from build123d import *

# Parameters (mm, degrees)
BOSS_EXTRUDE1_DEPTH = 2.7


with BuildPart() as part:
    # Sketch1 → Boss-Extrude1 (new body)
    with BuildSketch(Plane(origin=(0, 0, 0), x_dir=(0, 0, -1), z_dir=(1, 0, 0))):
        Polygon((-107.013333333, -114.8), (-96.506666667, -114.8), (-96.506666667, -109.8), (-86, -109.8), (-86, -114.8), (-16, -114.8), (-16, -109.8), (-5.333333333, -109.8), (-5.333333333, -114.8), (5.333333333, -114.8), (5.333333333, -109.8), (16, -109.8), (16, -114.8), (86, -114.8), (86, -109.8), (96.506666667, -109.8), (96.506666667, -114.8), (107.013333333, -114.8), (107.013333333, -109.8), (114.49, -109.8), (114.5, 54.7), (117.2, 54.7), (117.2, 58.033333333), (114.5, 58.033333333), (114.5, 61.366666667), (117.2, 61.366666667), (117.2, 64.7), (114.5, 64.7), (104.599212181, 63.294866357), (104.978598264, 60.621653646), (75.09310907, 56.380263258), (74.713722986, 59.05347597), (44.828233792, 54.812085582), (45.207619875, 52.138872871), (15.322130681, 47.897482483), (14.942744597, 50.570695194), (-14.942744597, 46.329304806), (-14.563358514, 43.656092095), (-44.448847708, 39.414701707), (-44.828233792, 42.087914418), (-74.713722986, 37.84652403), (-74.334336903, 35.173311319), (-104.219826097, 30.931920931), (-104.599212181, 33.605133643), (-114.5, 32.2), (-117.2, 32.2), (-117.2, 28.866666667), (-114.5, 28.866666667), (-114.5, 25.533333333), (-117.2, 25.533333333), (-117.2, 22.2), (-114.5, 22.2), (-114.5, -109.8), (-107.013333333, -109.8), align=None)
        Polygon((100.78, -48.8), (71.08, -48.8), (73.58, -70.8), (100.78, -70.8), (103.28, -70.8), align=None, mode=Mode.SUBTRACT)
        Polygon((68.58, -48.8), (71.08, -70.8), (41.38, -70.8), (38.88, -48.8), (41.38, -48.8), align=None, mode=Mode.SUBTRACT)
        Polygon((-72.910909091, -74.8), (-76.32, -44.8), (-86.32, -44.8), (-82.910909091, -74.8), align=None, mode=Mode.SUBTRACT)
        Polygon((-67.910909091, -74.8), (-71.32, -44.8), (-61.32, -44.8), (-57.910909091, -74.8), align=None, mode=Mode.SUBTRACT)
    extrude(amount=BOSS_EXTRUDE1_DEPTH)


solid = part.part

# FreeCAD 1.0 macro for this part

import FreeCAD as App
import Part
import Sketcher
from FreeCAD import Vector


def add_polygon(sketch, points):
    """Adds a closed chain of lines whose ends are joined by coincident constraints."""
    first, n = sketch.GeometryCount, len(points)
    for a, b in zip(points, points[1:] + points[:1]):
        sketch.addGeometry(Part.LineSegment(App.Vector(*a, 0), App.Vector(*b, 0)), False)
    for i in range(n):
        sketch.addConstraint(Sketcher.Constraint("Coincident", first + i, 2, first + (i + 1) % n, 1))

doc = App.newDocument("Part")
body = doc.addObject("PartDesign::Body", "Body")

# Sketch on YZ plane
sketch1 = body.newObject("Sketcher::SketchObject", "Sketch")
sketch1.AttachmentSupport = (doc.getObject("YZ_Plane"), [""])
sketch1.MapMode = "FlatFace"
add_polygon(sketch1, [(-114.8, 107), (-114.8, 96.5), (-109.8, 96.5), (-109.8, 86), (-114.8, 86), (-114.8, 16), (-109.8, 16), (-109.8, 5.3), (-114.8, 5.3), (-114.8, -5.3), (-109.8, -5.3), (-109.8, -16), (-114.8, -16), (-114.8, -86), (-109.8, -86), (-109.8, -96.5), (-114.8, -96.5), (-114.8, -107), (-109.8, -107), (-109.8, -114.5), (54.7, -114.5), (54.7, -117.2), (58, -117.2), (58, -114.5), (61.4, -114.5), (61.4, -117.2), (64.7, -117.2), (64.7, -114.5), (63.3, -104.6), (60.6, -105), (56.4, -75.1), (59.1, -74.7), (54.8, -44.8), (52.1, -45.2), (47.9, -15.3), (50.6, -14.9), (46.3, 14.9), (43.7, 14.6), (39.4, 44.4), (42.1, 44.8), (37.8, 74.7), (35.2, 74.3), (30.9, 104.2), (33.6, 104.6), (32.2, 114.5), (32.2, 117.2), (28.9, 117.2), (28.9, 114.5), (25.5, 114.5), (25.5, 117.2), (22.2, 117.2), (22.2, 114.5), (-109.8, 114.5), (-109.8, 107)])  # lines 0-53
add_polygon(sketch1, [(-44.8, 76.3), (-74.8, 72.9), (-74.8, 82.9), (-44.8, 86.3)])  # lines 54-57
add_polygon(sketch1, [(-74.8, 57.9), (-74.8, 67.9), (-44.8, 71.3), (-44.8, 61.3)])  # lines 58-61
add_polygon(sketch1, [(-48.8, -38.9), (-48.8, -68.6), (-70.8, -71.1), (-70.8, -41.4)])  # lines 62-65
add_polygon(sketch1, [(-48.8, -71.1), (-48.8, -100.8), (-70.8, -103.3), (-70.8, -73.6)])  # lines 66-69
sketch1.addConstraint([
    Sketcher.Constraint("Vertical", 0),
    Sketcher.Constraint("Horizontal", 1),
    Sketcher.Constraint("Vertical", 2),
    Sketcher.Constraint("Horizontal", 3),
    Sketcher.Constraint("Vertical", 4),
    Sketcher.Constraint("Horizontal", 5),
    Sketcher.Constraint("Vertical", 6),
    Sketcher.Constraint("Horizontal", 7),
    Sketcher.Constraint("Vertical", 8),
    Sketcher.Constraint("Horizontal", 9),
    Sketcher.Constraint("Vertical", 10),
    Sketcher.Constraint("Horizontal", 11),
    Sketcher.Constraint("Vertical", 12),
    Sketcher.Constraint("Horizontal", 13),
    Sketcher.Constraint("Vertical", 14),
    Sketcher.Constraint("Horizontal", 15),
    Sketcher.Constraint("Vertical", 16),
    Sketcher.Constraint("Horizontal", 17),
    Sketcher.Constraint("Vertical", 18),
    Sketcher.Constraint("Vertical", 20),
    Sketcher.Constraint("Horizontal", 21),
    Sketcher.Constraint("Vertical", 22),
    Sketcher.Constraint("Horizontal", 23),
    Sketcher.Constraint("Vertical", 24),
    Sketcher.Constraint("Horizontal", 25),
    Sketcher.Constraint("Vertical", 26),
    Sketcher.Constraint("Vertical", 44),
    Sketcher.Constraint("Horizontal", 45),
    Sketcher.Constraint("Vertical", 46),
    Sketcher.Constraint("Horizontal", 47),
    Sketcher.Constraint("Vertical", 48),
    Sketcher.Constraint("Horizontal", 49),
    Sketcher.Constraint("Vertical", 50),
    Sketcher.Constraint("Horizontal", 51),
    Sketcher.Constraint("Vertical", 52),
    Sketcher.Constraint("Horizontal", 53),
    Sketcher.Constraint("Vertical", 55),
    Sketcher.Constraint("Vertical", 57),
    Sketcher.Constraint("Vertical", 58),
    Sketcher.Constraint("Vertical", 60),
    Sketcher.Constraint("Vertical", 62),
    Sketcher.Constraint("Vertical", 64),
    Sketcher.Constraint("Vertical", 66),
    Sketcher.Constraint("Vertical", 68),
    Sketcher.Constraint("Symmetric", 6, 2, 9, 2, -1),
    Sketcher.Constraint("Symmetric", 4, 2, 11, 2, -1),
    Sketcher.Constraint("Symmetric", 2, 2, 13, 2, -1),
    Sketcher.Constraint("Symmetric", 0, 2, 15, 2, -1),
    Sketcher.Constraint("Symmetric", 17, 2, 52, 2, -1),
    Sketcher.Constraint("Perpendicular", 27, 28),
    Sketcher.Constraint("Perpendicular", 28, 29),
    Sketcher.Constraint("Perpendicular", 29, 30),
    Sketcher.Constraint("Perpendicular", 30, 31),
    Sketcher.Constraint("Perpendicular", 31, 32),
    Sketcher.Constraint("Perpendicular", 32, 33),
    Sketcher.Constraint("Perpendicular", 33, 34),
    Sketcher.Constraint("Perpendicular", 34, 35),
    Sketcher.Constraint("Perpendicular", 35, 36),
    Sketcher.Constraint("Perpendicular", 36, 37),
    Sketcher.Constraint("Perpendicular", 37, 38),
    Sketcher.Constraint("Perpendicular", 38, 39),
    Sketcher.Constraint("Perpendicular", 39, 40),
    Sketcher.Constraint("Perpendicular", 40, 41),
    Sketcher.Constraint("Perpendicular", 41, 42),
    Sketcher.Constraint("Perpendicular", 42, 43),
    Sketcher.Constraint("Parallel", 54, 56),
    Sketcher.Constraint("Parallel", 56, 59),
    Sketcher.Constraint("Parallel", 59, 61),
    Sketcher.Constraint("Parallel", 61, 63),
    Sketcher.Constraint("Parallel", 63, 65),
    Sketcher.Constraint("Parallel", 65, 67),
    Sketcher.Constraint("Parallel", 67, 69),
    Sketcher.Constraint("Horizontal", 19, 2, 22, 2),
    Sketcher.Constraint("Horizontal", 21, 2, 24, 2),
    Sketcher.Constraint("Horizontal", 23, 2, 26, 2),
    Sketcher.Constraint("Horizontal", 43, 2, 46, 2),
    Sketcher.Constraint("Horizontal", 45, 2, 48, 2),
    Sketcher.Constraint("Horizontal", 47, 2, 50, 2),
    Sketcher.Constraint("Horizontal", 63, 2, 69, 2),
    Sketcher.Constraint("Vertical", 0, 2, 3, 2),
    Sketcher.Constraint("Vertical", 2, 2, 5, 2),
    Sketcher.Constraint("Vertical", 4, 2, 7, 2),
    Sketcher.Constraint("Vertical", 14, 2, 17, 2),
    Sketcher.Constraint("Vertical", 55, 2, 58, 2),
    Sketcher.Constraint("Vertical", 57, 2, 59, 2),
    Sketcher.Constraint("Vertical", 65, 2, 66, 2),
    Sketcher.Constraint("Vertical", 64, 2, 67, 2),
    Sketcher.Constraint("Equal", 21, 23),
    Sketcher.Constraint("Equal", 23, 25),
    Sketcher.Constraint("Equal", 25, 45),
    Sketcher.Constraint("Equal", 45, 47),
    Sketcher.Constraint("Equal", 47, 49),
    Sketcher.Constraint("Equal", 0, 2),
    Sketcher.Constraint("Equal", 6, 8),
    Sketcher.Constraint("Equal", 26, 44),
    Sketcher.Constraint("Equal", 57, 58),
    Sketcher.Constraint("Equal", 64, 66),
    Sketcher.Constraint("Equal", 28, 30),
    Sketcher.Constraint("Equal", 29, 31),
    Sketcher.Constraint("Equal", 30, 32),
    Sketcher.Constraint("Equal", 31, 33),
    Sketcher.Constraint("Equal", 32, 34),
    Sketcher.Constraint("Equal", 33, 35),
    Sketcher.Constraint("Equal", 34, 36),
    Sketcher.Constraint("Equal", 35, 37),
    Sketcher.Constraint("Equal", 36, 38),
    Sketcher.Constraint("Equal", 37, 39),
    Sketcher.Constraint("Equal", 38, 40),
    Sketcher.Constraint("Equal", 39, 41),
    Sketcher.Constraint("Equal", 40, 42),
    Sketcher.Constraint("Equal", 27, 43),
    Sketcher.Constraint("DistanceX", 1, 1, 1, 2, 5.0),
    Sketcher.Constraint("DistanceX", 51, 2, 51, 1, 132.0),
    Sketcher.Constraint("DistanceY", 4, 2, 4, 1, 70.0),
    Sketcher.Constraint("DistanceY", 55, 1, 55, 2, 10.0),
    Sketcher.Constraint("Distance", 27, 10.0),
    Sketcher.Constraint("DistanceY", 20, 2, 20, 1, 2.7),
    Sketcher.Constraint("DistanceY", 62, 2, 62, 1, 29.7),
    Sketcher.Constraint("DistanceY", -1, 1, 2, 2, 86.0),
    Sketcher.Constraint("Distance", 19, 164.5),
    Sketcher.Constraint("Distance", 28, 2.7),
    Sketcher.Constraint("DistanceX", 0, 2, -1, 1, 114.8),
    Sketcher.Constraint("DistanceY", 19, 2, -1, 1, 114.5),
    Sketcher.Constraint("DistanceX", -1, 1, 25, 2, 64.7),
    Sketcher.Constraint("DistanceY", -1, 1, 43, 2, 114.5),
    Sketcher.Constraint("DistanceX", 54, 2, -1, 1, 74.8),
    Sketcher.Constraint("DistanceX", 56, 2, -1, 1, 44.8),
    Sketcher.Constraint("DistanceX", 62, 2, -1, 1, 48.8),
    Sketcher.Constraint("DistanceX", 63, 2, -1, 1, 70.8),
    Sketcher.Constraint("DistanceY", 18, 2, -1, 1, 114.49),
    Sketcher.Constraint("DistanceY", -1, 1, 56, 2, 86.32),
    Sketcher.Constraint("DistanceY", -1, 1, 59, 2, 71.32),
    Sketcher.Constraint("DistanceY", 62, 2, -1, 1, 68.58),
    Sketcher.Constraint("DistanceY", 63, 2, -1, 1, 71.08),
    Sketcher.Constraint("DistanceY", 0, 2, 0, 1, 10.506667),
])
pad1 = body.newObject("PartDesign::Pad", "Pad")
pad1.Profile = sketch1
pad1.Length = 2.7

doc.recompute()
